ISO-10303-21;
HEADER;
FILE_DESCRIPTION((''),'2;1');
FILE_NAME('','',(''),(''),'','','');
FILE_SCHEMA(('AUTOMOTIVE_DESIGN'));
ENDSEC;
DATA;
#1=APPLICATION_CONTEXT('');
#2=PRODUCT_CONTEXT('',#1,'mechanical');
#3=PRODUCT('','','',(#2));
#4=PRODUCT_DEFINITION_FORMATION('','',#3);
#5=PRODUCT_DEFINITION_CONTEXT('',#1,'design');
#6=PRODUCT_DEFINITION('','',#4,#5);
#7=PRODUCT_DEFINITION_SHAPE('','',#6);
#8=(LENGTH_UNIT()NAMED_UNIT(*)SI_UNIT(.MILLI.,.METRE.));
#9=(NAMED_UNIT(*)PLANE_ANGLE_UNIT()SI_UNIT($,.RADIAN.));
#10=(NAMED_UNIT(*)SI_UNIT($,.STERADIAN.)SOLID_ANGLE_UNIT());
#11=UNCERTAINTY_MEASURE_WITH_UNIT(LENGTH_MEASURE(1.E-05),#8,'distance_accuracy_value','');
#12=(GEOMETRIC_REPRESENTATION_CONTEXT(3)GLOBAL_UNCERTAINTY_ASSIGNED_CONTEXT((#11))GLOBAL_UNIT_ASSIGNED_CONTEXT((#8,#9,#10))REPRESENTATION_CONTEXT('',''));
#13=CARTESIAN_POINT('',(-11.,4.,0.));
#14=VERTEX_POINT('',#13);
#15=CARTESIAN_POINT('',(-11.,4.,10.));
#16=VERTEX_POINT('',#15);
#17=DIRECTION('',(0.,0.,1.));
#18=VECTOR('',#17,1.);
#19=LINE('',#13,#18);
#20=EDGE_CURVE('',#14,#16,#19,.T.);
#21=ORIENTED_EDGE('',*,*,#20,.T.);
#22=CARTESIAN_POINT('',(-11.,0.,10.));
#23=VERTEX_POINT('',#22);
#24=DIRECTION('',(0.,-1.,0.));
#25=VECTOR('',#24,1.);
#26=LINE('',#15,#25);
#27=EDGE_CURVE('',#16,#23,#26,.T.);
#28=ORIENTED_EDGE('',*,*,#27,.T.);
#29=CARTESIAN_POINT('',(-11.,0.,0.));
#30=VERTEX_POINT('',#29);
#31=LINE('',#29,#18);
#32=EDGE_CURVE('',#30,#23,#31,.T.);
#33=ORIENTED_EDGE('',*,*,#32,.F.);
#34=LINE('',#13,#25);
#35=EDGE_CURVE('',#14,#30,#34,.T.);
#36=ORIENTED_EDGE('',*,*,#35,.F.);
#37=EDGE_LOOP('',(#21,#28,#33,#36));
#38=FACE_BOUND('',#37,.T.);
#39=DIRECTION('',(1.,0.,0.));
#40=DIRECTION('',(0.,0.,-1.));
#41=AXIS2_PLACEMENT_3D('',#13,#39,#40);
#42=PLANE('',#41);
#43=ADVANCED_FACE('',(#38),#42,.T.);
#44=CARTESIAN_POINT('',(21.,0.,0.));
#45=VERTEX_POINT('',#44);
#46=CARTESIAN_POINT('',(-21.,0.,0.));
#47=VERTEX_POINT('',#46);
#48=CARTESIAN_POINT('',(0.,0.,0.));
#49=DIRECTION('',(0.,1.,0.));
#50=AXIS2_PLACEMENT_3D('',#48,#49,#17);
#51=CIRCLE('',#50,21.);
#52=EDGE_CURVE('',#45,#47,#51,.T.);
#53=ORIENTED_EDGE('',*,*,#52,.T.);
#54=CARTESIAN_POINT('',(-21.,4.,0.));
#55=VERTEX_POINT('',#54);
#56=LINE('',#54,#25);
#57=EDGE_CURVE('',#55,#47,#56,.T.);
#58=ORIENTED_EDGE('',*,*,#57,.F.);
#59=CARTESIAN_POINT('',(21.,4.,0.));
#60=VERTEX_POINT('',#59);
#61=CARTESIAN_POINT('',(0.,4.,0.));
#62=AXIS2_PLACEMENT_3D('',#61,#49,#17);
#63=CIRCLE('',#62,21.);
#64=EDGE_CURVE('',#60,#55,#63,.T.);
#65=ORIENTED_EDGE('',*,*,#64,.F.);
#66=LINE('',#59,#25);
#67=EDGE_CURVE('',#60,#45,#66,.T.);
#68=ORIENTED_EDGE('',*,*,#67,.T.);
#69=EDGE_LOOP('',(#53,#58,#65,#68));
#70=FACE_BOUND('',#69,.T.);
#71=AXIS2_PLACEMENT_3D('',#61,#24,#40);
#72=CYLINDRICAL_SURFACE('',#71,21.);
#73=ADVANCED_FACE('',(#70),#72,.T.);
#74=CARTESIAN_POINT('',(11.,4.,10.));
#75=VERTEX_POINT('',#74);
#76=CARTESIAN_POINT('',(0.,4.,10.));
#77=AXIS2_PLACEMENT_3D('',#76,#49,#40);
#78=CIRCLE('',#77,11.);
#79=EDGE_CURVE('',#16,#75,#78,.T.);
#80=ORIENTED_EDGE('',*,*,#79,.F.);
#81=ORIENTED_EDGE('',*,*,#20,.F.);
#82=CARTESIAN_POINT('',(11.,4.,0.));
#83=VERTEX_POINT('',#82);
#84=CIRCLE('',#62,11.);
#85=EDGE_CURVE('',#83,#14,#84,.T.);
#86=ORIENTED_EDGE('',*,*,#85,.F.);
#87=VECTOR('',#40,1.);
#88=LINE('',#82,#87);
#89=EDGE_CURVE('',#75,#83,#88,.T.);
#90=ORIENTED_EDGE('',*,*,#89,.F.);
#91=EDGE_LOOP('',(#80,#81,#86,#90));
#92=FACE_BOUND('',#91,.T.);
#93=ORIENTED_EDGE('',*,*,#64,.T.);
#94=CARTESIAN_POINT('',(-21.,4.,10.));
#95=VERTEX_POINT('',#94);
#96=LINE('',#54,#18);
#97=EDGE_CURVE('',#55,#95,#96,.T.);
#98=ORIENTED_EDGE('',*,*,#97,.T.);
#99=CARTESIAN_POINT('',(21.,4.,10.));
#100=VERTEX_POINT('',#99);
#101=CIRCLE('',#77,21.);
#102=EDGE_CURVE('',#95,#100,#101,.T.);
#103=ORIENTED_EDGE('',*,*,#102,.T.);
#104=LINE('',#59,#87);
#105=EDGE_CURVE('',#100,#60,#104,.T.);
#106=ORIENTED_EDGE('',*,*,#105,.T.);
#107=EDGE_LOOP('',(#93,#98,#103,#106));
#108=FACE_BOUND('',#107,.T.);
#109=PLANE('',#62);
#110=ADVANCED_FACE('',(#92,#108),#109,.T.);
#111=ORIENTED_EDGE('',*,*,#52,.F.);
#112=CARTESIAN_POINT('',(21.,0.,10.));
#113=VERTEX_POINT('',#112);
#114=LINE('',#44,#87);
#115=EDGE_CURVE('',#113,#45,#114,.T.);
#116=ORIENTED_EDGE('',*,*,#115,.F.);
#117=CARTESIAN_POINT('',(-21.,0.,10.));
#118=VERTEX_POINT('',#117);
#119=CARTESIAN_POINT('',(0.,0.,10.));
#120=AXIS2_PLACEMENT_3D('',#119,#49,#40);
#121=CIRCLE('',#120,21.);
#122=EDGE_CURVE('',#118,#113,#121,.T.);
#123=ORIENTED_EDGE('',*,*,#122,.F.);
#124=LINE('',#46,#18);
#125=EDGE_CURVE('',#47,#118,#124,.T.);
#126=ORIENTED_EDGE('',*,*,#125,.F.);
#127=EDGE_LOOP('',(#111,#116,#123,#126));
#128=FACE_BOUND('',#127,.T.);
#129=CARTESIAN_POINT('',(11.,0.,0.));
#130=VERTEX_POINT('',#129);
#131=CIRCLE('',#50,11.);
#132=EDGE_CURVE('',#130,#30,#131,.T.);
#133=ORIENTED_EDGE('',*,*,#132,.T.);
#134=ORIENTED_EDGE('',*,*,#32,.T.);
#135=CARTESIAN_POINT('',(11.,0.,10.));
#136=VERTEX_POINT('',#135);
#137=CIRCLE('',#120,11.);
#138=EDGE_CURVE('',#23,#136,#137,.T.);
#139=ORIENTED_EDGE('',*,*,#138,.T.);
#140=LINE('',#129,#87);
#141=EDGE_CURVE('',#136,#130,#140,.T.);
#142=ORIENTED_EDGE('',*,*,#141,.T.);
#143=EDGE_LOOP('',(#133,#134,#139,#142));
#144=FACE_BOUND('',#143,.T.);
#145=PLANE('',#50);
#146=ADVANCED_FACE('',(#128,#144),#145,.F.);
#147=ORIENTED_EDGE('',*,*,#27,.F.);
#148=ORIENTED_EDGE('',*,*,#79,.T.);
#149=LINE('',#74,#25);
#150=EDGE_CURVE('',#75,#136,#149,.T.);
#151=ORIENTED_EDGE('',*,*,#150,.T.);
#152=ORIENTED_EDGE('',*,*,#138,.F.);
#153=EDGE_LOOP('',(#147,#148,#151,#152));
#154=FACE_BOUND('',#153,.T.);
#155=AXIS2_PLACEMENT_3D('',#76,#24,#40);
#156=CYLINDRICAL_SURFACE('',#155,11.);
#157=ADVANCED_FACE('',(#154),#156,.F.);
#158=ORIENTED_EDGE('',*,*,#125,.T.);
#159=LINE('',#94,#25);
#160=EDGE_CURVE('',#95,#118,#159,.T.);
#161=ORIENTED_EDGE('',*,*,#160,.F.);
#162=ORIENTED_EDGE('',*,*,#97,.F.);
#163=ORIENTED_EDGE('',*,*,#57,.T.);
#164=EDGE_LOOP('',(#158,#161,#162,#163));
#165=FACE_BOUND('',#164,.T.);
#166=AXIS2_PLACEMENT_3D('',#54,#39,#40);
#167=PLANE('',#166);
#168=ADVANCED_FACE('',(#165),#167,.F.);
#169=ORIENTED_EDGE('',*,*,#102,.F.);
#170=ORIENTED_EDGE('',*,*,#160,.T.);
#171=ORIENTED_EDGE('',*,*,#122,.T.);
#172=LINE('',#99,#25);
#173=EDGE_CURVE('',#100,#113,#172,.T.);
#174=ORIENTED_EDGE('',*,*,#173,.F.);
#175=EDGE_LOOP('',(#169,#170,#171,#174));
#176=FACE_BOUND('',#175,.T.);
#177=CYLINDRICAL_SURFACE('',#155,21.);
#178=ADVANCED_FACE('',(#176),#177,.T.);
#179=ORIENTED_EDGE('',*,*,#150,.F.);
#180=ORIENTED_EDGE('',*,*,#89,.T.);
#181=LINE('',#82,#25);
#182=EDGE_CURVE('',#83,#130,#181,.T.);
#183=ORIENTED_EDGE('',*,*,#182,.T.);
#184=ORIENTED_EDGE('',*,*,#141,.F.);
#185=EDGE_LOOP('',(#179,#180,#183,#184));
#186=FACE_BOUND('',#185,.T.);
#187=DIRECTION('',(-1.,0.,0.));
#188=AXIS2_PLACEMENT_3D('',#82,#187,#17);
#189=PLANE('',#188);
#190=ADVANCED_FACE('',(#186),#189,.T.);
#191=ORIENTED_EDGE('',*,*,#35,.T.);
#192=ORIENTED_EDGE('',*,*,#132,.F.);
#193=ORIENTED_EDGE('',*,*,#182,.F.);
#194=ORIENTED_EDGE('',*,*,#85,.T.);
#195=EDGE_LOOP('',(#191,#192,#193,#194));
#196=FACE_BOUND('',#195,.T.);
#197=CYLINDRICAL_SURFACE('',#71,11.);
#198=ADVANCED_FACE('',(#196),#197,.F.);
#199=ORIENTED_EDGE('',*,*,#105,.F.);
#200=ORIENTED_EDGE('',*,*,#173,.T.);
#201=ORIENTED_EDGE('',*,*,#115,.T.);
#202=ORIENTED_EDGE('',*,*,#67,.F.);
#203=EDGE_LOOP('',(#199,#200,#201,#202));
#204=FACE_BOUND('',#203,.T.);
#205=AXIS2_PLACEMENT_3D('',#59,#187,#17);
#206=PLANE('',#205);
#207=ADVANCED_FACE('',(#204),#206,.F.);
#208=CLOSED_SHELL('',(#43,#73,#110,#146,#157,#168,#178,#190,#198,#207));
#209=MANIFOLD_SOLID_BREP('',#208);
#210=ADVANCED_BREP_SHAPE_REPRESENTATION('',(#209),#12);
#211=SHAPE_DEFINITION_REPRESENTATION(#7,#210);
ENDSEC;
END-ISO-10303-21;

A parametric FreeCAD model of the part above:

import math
import FreeCAD as App
import Part
import Sketcher

doc = App.newDocument("Part")
body = doc.addObject("PartDesign::Body", "Body")

# Sketch on XZ plane
sketch1 = body.newObject("Sketcher::SketchObject", "Sketch")
sketch1.AttachmentSupport = (doc.getObject("XZ_Plane"), [""])
sketch1.MapMode = "FlatFace"
sketch1.addGeometry(Part.LineSegment(App.Vector(-21, 0, 0), App.Vector(-21, 10, 0)), False)
sketch1.addGeometry(Part.ArcOfCircle(Part.Circle(App.Vector(0, 10, 0), App.Vector(0, 0, 1), 21), math.radians(0), math.radians(180)), False)
sketch1.addGeometry(Part.LineSegment(App.Vector(21, 10, 0), App.Vector(21, 0, 0)), False)
sketch1.addGeometry(Part.ArcOfCircle(Part.Circle(App.Vector(0, 0, 0), App.Vector(0, 0, 1), 21), math.radians(180), math.radians(360)), False)
sketch1.addGeometry(Part.ArcOfCircle(Part.Circle(App.Vector(0, 0, 0), App.Vector(0, 0, 1), 11), math.radians(180), math.radians(360)), False)
sketch1.addGeometry(Part.LineSegment(App.Vector(11, 0, 0), App.Vector(11, 10, 0)), False)
sketch1.addGeometry(Part.ArcOfCircle(Part.Circle(App.Vector(0, 10, 0), App.Vector(0, 0, 1), 11), math.radians(0), math.radians(180)), False)
sketch1.addGeometry(Part.LineSegment(App.Vector(-11, 10, 0), App.Vector(-11, 0, 0)), False)
sketch1.addConstraint(Sketcher.Constraint("Tangent", 0, 2, 1, 2))
sketch1.addConstraint(Sketcher.Constraint("Tangent", 1, 1, 2, 1))
sketch1.addConstraint(Sketcher.Constraint("Tangent", 2, 2, 3, 2))
sketch1.addConstraint(Sketcher.Constraint("Tangent", 3, 1, 0, 1))
sketch1.addConstraint(Sketcher.Constraint("Tangent", 4, 2, 5, 1))
sketch1.addConstraint(Sketcher.Constraint("Tangent", 5, 2, 6, 1))
sketch1.addConstraint(Sketcher.Constraint("Tangent", 6, 2, 7, 1))
sketch1.addConstraint(Sketcher.Constraint("Tangent", 7, 2, 4, 1))
sketch1.addConstraint(Sketcher.Constraint("Vertical", 0))
sketch1.addConstraint(Sketcher.Constraint("Vertical", 2))
sketch1.addConstraint(Sketcher.Constraint("Vertical", 5))
sketch1.addConstraint(Sketcher.Constraint("Vertical", 7))
sketch1.addConstraint(Sketcher.Constraint("Coincident", 3, 3, -1, 1))
sketch1.addConstraint(Sketcher.Constraint("Coincident", 4, 3, -1, 1))
sketch1.addConstraint(Sketcher.Constraint("Horizontal", 6, 3, 0, 2))
sketch1.addConstraint(Sketcher.Constraint("Radius", 1, 21.0))
sketch1.addConstraint(Sketcher.Constraint("Radius", 4, 11.0))
sketch1.addConstraint(Sketcher.Constraint("DistanceY", 0, 1, 0, 2, 10.0))
pad1 = body.newObject("PartDesign::Pad", "Pad")
pad1.Profile = sketch1
pad1.Length = 4
pad1.Reversed = True

doc.recompute()
